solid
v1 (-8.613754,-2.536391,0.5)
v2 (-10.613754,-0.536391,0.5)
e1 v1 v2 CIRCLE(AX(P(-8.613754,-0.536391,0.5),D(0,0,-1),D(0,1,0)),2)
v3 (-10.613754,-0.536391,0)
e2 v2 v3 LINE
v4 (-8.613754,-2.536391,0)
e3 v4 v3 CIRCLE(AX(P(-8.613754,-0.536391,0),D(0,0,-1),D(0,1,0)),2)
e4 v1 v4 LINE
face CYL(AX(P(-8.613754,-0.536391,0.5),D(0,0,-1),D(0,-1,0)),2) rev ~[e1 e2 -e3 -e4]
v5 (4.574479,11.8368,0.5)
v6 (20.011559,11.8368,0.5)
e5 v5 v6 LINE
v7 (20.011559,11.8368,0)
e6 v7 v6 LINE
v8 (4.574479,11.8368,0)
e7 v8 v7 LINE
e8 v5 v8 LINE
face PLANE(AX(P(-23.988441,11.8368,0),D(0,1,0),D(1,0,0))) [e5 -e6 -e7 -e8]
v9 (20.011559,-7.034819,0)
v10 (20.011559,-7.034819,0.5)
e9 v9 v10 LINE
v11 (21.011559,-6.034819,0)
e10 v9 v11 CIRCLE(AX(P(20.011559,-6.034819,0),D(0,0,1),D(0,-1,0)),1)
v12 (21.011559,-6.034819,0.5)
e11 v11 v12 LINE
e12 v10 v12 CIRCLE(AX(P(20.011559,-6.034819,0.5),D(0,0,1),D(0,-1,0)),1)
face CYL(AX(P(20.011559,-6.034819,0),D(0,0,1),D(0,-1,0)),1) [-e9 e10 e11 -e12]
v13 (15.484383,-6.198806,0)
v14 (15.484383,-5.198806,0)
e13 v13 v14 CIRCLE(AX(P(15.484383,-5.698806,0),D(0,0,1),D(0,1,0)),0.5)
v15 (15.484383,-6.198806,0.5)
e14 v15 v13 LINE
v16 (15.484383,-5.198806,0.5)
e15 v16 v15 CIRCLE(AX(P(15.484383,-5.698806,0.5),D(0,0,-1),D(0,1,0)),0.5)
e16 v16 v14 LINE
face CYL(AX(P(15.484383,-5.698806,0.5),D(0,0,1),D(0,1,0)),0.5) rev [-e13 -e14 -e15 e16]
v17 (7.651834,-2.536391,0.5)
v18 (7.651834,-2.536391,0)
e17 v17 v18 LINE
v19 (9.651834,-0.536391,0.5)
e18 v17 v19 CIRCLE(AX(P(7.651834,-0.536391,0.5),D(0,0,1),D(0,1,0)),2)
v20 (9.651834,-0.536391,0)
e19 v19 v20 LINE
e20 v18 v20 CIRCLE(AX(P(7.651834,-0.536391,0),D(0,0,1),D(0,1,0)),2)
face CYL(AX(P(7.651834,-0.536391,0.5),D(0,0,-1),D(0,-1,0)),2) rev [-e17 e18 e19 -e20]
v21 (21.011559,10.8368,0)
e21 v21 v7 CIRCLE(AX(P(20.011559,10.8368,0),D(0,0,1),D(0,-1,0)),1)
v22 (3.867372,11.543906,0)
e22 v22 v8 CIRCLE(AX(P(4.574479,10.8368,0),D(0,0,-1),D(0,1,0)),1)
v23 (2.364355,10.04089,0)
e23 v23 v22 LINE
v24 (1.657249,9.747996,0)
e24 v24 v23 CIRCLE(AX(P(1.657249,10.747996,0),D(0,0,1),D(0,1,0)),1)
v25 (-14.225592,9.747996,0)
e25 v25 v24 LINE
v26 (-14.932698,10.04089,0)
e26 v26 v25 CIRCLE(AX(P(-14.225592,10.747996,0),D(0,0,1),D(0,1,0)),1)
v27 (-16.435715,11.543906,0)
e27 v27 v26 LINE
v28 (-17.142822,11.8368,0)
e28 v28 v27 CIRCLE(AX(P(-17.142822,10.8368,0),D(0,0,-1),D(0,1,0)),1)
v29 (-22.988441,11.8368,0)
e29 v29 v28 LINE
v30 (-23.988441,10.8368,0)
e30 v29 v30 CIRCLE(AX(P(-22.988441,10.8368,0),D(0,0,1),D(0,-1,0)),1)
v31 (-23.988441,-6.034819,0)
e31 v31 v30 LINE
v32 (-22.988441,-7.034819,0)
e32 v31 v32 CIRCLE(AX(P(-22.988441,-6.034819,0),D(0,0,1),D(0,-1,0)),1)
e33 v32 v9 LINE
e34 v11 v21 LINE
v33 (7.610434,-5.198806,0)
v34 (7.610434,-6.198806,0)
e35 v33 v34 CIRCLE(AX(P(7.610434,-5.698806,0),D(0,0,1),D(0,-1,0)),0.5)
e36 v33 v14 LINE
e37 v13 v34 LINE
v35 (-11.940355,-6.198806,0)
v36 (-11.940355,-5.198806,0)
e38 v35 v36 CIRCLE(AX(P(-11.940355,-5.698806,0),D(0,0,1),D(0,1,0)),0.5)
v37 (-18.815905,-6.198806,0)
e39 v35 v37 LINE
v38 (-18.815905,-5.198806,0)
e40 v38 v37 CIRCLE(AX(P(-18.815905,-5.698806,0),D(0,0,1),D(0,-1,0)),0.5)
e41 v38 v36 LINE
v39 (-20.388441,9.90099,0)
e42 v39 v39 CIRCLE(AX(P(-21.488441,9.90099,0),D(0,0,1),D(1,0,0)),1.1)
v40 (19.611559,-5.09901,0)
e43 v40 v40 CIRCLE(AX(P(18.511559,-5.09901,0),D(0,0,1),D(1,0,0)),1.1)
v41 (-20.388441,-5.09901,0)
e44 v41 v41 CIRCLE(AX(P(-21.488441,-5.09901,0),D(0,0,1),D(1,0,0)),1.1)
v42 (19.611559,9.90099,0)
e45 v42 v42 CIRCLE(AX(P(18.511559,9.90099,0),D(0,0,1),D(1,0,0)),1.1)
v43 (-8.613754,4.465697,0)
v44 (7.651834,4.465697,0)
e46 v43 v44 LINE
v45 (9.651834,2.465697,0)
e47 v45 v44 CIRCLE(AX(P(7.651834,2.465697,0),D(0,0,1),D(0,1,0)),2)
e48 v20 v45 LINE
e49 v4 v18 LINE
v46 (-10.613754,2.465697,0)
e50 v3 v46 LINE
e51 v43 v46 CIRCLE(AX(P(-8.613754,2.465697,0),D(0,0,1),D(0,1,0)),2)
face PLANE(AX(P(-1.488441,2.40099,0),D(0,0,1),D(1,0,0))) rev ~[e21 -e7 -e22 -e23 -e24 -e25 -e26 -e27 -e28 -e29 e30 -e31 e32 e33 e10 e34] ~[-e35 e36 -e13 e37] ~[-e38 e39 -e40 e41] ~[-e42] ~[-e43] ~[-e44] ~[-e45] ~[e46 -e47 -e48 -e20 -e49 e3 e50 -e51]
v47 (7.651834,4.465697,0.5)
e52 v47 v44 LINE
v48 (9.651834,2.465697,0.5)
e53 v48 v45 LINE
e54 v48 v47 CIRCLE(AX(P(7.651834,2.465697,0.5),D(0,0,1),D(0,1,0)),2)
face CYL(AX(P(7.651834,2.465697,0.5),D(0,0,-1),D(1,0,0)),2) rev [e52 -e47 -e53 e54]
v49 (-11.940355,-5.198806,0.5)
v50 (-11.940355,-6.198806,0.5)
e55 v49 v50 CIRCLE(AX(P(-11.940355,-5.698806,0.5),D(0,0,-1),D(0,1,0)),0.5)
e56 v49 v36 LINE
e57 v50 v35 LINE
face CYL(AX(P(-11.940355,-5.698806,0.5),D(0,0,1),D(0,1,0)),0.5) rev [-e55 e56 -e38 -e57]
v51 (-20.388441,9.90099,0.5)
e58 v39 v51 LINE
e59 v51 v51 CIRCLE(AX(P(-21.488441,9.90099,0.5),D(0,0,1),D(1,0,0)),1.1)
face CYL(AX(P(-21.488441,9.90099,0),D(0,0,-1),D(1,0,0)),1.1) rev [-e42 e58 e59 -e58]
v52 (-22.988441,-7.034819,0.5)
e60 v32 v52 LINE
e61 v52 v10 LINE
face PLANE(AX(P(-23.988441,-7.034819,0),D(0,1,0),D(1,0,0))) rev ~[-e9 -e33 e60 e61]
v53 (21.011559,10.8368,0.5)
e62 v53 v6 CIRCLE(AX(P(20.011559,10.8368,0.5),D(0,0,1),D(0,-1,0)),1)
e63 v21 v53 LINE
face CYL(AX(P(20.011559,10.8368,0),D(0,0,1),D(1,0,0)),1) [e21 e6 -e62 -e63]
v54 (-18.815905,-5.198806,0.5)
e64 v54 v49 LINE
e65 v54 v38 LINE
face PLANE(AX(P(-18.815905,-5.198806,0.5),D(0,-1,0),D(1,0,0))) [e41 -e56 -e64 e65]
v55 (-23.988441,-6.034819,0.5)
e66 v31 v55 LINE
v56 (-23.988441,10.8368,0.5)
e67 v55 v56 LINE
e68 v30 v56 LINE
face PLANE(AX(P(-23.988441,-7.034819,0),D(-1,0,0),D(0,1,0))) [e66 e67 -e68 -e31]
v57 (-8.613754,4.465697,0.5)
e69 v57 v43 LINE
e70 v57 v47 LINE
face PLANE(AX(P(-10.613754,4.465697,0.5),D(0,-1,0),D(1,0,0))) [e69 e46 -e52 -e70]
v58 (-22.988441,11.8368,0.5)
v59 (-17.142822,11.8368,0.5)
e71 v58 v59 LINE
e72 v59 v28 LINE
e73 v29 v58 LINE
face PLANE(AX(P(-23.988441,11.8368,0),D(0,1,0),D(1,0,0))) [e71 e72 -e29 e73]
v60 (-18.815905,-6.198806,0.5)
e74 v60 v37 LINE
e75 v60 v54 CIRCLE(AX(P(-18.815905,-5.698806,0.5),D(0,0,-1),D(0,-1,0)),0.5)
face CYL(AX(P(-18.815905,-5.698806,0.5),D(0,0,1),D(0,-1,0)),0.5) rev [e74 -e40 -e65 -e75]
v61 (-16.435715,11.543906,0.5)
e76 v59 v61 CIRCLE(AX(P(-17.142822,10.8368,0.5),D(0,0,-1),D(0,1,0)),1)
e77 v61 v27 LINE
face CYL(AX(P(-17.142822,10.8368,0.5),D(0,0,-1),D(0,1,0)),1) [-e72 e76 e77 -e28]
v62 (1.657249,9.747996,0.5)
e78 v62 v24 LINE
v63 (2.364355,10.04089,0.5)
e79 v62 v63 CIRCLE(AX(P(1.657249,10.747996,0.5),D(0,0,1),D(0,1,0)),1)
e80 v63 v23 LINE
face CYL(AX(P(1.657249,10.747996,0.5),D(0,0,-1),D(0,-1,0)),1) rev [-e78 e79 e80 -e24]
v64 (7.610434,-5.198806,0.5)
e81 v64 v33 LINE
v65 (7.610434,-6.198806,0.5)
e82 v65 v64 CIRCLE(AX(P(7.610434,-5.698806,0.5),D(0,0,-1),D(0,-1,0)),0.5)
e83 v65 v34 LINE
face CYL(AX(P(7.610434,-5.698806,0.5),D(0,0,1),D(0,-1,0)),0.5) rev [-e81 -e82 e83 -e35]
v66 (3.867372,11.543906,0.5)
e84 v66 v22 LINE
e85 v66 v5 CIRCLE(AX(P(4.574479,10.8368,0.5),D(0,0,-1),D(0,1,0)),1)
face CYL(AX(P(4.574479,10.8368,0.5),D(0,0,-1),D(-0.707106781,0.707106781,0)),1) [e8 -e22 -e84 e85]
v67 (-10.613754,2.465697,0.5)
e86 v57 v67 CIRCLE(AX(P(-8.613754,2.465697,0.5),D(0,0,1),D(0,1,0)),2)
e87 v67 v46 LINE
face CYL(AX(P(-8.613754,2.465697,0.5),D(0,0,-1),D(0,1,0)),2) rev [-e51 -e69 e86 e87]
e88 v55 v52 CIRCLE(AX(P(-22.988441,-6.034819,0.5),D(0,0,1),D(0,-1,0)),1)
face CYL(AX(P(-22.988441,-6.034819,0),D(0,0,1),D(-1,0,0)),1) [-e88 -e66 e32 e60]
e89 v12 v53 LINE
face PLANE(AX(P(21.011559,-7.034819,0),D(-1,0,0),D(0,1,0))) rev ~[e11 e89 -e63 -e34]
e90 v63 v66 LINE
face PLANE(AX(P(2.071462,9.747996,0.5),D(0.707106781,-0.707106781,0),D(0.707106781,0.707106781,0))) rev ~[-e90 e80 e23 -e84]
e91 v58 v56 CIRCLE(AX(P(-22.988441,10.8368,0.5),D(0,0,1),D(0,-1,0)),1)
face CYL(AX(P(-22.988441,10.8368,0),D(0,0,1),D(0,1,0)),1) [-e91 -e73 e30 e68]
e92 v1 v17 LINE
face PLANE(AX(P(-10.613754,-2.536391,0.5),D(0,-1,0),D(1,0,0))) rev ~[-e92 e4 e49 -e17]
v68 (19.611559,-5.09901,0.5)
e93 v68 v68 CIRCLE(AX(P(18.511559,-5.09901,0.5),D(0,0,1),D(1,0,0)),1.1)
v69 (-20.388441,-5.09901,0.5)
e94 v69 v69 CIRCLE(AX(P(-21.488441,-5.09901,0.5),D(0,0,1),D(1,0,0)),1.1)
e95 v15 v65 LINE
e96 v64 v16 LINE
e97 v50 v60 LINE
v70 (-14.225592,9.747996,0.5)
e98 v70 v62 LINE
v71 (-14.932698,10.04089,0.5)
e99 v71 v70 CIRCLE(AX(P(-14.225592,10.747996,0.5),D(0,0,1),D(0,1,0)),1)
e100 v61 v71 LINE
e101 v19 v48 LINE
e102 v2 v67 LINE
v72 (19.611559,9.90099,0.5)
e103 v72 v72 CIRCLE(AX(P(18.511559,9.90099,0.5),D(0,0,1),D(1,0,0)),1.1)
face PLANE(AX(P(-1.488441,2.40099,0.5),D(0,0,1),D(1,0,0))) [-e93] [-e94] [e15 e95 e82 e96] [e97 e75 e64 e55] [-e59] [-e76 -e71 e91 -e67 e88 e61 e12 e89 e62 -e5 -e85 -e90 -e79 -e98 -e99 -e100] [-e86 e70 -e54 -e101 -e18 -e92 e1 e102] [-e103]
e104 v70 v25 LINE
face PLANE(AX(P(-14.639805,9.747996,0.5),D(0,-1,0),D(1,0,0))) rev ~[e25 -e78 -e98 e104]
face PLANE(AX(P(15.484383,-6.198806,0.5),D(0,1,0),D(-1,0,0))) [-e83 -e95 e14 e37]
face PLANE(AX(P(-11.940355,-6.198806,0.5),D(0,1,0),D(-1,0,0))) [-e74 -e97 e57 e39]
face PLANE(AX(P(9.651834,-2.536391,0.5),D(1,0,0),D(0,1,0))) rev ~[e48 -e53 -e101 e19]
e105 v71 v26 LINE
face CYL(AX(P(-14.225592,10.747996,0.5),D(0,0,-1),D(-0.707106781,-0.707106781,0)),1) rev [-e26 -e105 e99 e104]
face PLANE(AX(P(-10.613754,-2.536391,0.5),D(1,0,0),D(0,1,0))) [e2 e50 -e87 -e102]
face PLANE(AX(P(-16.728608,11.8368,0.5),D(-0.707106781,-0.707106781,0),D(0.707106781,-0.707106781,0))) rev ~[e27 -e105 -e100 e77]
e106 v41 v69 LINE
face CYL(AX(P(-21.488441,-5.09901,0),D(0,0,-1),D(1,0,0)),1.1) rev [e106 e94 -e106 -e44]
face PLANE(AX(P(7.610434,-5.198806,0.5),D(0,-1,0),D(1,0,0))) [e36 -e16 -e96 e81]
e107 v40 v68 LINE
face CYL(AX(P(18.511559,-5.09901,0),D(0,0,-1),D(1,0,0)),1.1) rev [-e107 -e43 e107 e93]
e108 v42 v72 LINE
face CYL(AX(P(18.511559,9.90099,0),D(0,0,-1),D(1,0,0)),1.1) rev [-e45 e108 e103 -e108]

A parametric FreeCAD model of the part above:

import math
import FreeCAD as App
import Part
import Sketcher
Q = App.Units.Quantity


def edges_at(feature, points):
    """Names of the edges that pass closest to the given points."""
    edges = feature.Shape.Edges
    near = lambda p: min(range(len(edges)), key=lambda i: edges[i].distToShape(Part.Vertex(*p))[0])
    return sorted({f"Edge{near(p) + 1}" for p in points})

doc = App.newDocument("Part")
body = doc.addObject("PartDesign::Body", "Body")

sketch1 = body.newObject("Sketcher::SketchObject", "Sketch")
sketch1.AttachmentSupport = (doc.getObject("XY_Plane"), [""])
sketch1.MapMode = "FlatFace"
sketch1.addGeometry(Part.LineSegment(App.Vector(-24, 11.8, 0), App.Vector(-24, -7, 0)), False)
sketch1.addGeometry(Part.LineSegment(App.Vector(-24, -7, 0), App.Vector(21, -7, 0)), False)
sketch1.addGeometry(Part.LineSegment(App.Vector(21, -7, 0), App.Vector(21, 11.8, 0)), False)
sketch1.addGeometry(Part.LineSegment(App.Vector(21, 11.8, 0), App.Vector(-24, 11.8, 0)), False)
sketch1.addGeometry(Part.Circle(App.Vector(-21.5, -5.1, 0), App.Vector(0, 0, 1), 1.1), False)
sketch1.addGeometry(Part.Circle(App.Vector(18.5, -5.1, 0), App.Vector(0, 0, 1), 1.1), False)
sketch1.addGeometry(Part.Circle(App.Vector(-21.5, 9.9, 0), App.Vector(0, 0, 1), 1.1), False)
sketch1.addGeometry(Part.Circle(App.Vector(18.5, 9.9, 0), App.Vector(0, 0, 1), 1.1), False)
sketch1.addConstraint(Sketcher.Constraint("Coincident", 0, 2, 1, 1))
sketch1.addConstraint(Sketcher.Constraint("Coincident", 1, 2, 2, 1))
sketch1.addConstraint(Sketcher.Constraint("Coincident", 2, 2, 3, 1))
sketch1.addConstraint(Sketcher.Constraint("Coincident", 3, 2, 0, 1))
sketch1.addConstraint(Sketcher.Constraint("Vertical", 0))
sketch1.addConstraint(Sketcher.Constraint("Horizontal", 1))
sketch1.addConstraint(Sketcher.Constraint("Vertical", 2))
sketch1.addConstraint(Sketcher.Constraint("Horizontal", 3))
sketch1.addConstraint(Sketcher.Constraint("Equal", 4, 5))
sketch1.addConstraint(Sketcher.Constraint("Equal", 5, 6))
sketch1.addConstraint(Sketcher.Constraint("Equal", 6, 7))
sketch1.addConstraint(Sketcher.Constraint("Horizontal", 4, 3, 5, 3))
sketch1.addConstraint(Sketcher.Constraint("Horizontal", 6, 3, 7, 3))
sketch1.addConstraint(Sketcher.Constraint("Vertical", 4, 3, 6, 3))
sketch1.addConstraint(Sketcher.Constraint("Vertical", 5, 3, 7, 3))
sketch1.addConstraint(Sketcher.Constraint("Diameter", 4, Q("2.2 mm")))
sketch1.addConstraint(Sketcher.Constraint("DistanceX", 1, 1, 1, 2, Q("45 mm")))
sketch1.addConstraint(Sketcher.Constraint("DistanceX", 4, 3, 5, 3, Q("40 mm")))
sketch1.addConstraint(Sketcher.Constraint("DistanceY", 4, 3, 6, 3, Q("15 mm")))
sketch1.addConstraint(Sketcher.Constraint("DistanceX", 0, 2, 4, 3, Q("2.5 mm")))
sketch1.addConstraint(Sketcher.Constraint("DistanceY", 0, 2, 0, 1, Q("18.871619 mm")))
sketch1.addConstraint(Sketcher.Constraint("DistanceY", -1, 1, 2, 2, Q("11.8368 mm")))
sketch1.addConstraint(Sketcher.Constraint("DistanceX", 4, 3, -1, 1, Q("21.488441 mm")))
sketch1.addConstraint(Sketcher.Constraint("DistanceY", 4, 3, -1, 1, Q("5.09901 mm")))
pad1 = body.newObject("PartDesign::Pad", "Pad")
pad1.Profile = sketch1
pad1.Length = 0.5

sketch2 = body.newObject("Sketcher::SketchObject", "Sketch001")
sketch2.AttachmentSupport = (doc.getObject("XY_Plane"), [""])
sketch2.MapMode = "FlatFace"
sketch2.AttachmentOffset = App.Placement(App.Vector(0, 0, 0.5), App.Rotation())
sketch2.addGeometry(Part.LineSegment(App.Vector(-16.7, 11.8, 0), App.Vector(-14.6, 9.7, 0)), False)
sketch2.addGeometry(Part.LineSegment(App.Vector(-14.6, 9.7, 0), App.Vector(2.1, 9.7, 0)), False)
sketch2.addGeometry(Part.LineSegment(App.Vector(2.1, 9.7, 0), App.Vector(5.5, 13.2, 0)), False)
sketch2.addGeometry(Part.LineSegment(App.Vector(5.5, 13.2, 0), App.Vector(-14.9, 13.2, 0)), False)
sketch2.addGeometry(Part.LineSegment(App.Vector(-14.9, 13.2, 0), App.Vector(-16.7, 11.8, 0)), False)
sketch2.addGeometry(Part.LineSegment(App.Vector(-10.6, 4.5, 0), App.Vector(-10.6, -2.5, 0)), False)
sketch2.addGeometry(Part.LineSegment(App.Vector(-10.6, -2.5, 0), App.Vector(9.7, -2.5, 0)), False)
sketch2.addGeometry(Part.LineSegment(App.Vector(9.7, -2.5, 0), App.Vector(9.7, 4.5, 0)), False)
sketch2.addGeometry(Part.LineSegment(App.Vector(9.7, 4.5, 0), App.Vector(-10.6, 4.5, 0)), False)
sketch2.addGeometry(Part.LineSegment(App.Vector(-11.9, -5.2, 0), App.Vector(-18.8, -5.2, 0)), False)
sketch2.addGeometry(Part.ArcOfCircle(Part.Circle(App.Vector(-18.8, -5.7, 0), App.Vector(0, 0, 1), 0.5), math.radians(90), math.radians(270)), False)
sketch2.addGeometry(Part.LineSegment(App.Vector(-18.8, -6.2, 0), App.Vector(-11.9, -6.2, 0)), False)
sketch2.addGeometry(Part.ArcOfCircle(Part.Circle(App.Vector(-11.9, -5.7, 0), App.Vector(0, 0, 1), 0.5), math.radians(-90), math.radians(90)), False)
sketch2.addGeometry(Part.LineSegment(App.Vector(15.5, -5.2, 0), App.Vector(7.6, -5.2, 0)), False)
sketch2.addGeometry(Part.ArcOfCircle(Part.Circle(App.Vector(7.6, -5.7, 0), App.Vector(0, 0, 1), 0.5), math.radians(90), math.radians(270)), False)
sketch2.addGeometry(Part.LineSegment(App.Vector(7.6, -6.2, 0), App.Vector(15.5, -6.2, 0)), False)
sketch2.addGeometry(Part.ArcOfCircle(Part.Circle(App.Vector(15.5, -5.7, 0), App.Vector(0, 0, 1), 0.5), math.radians(-90), math.radians(90)), False)
sketch2.addConstraint(Sketcher.Constraint("Coincident", 0, 2, 1, 1))
sketch2.addConstraint(Sketcher.Constraint("Coincident", 1, 2, 2, 1))
sketch2.addConstraint(Sketcher.Constraint("Coincident", 2, 2, 3, 1))
sketch2.addConstraint(Sketcher.Constraint("Coincident", 3, 2, 4, 1))
sketch2.addConstraint(Sketcher.Constraint("Coincident", 4, 2, 0, 1))
sketch2.addConstraint(Sketcher.Constraint("Coincident", 5, 2, 6, 1))
sketch2.addConstraint(Sketcher.Constraint("Coincident", 6, 2, 7, 1))
sketch2.addConstraint(Sketcher.Constraint("Coincident", 7, 2, 8, 1))
sketch2.addConstraint(Sketcher.Constraint("Coincident", 8, 2, 5, 1))
sketch2.addConstraint(Sketcher.Constraint("Tangent", 9, 2, 10, 1))
sketch2.addConstraint(Sketcher.Constraint("Tangent", 10, 2, 11, 1))
sketch2.addConstraint(Sketcher.Constraint("Tangent", 11, 2, 12, 1))
sketch2.addConstraint(Sketcher.Constraint("Tangent", 12, 2, 9, 1))
sketch2.addConstraint(Sketcher.Constraint("Tangent", 13, 2, 14, 1))
sketch2.addConstraint(Sketcher.Constraint("Tangent", 14, 2, 15, 1))
sketch2.addConstraint(Sketcher.Constraint("Tangent", 15, 2, 16, 1))
sketch2.addConstraint(Sketcher.Constraint("Tangent", 16, 2, 13, 1))
sketch2.addConstraint(Sketcher.Constraint("Horizontal", 1))
sketch2.addConstraint(Sketcher.Constraint("Horizontal", 3))
sketch2.addConstraint(Sketcher.Constraint("Vertical", 5))
sketch2.addConstraint(Sketcher.Constraint("Horizontal", 6))
sketch2.addConstraint(Sketcher.Constraint("Vertical", 7))
sketch2.addConstraint(Sketcher.Constraint("Horizontal", 8))
sketch2.addConstraint(Sketcher.Constraint("Horizontal", 9))
sketch2.addConstraint(Sketcher.Constraint("Horizontal", 11))
sketch2.addConstraint(Sketcher.Constraint("Horizontal", 13))
sketch2.addConstraint(Sketcher.Constraint("Horizontal", 15))
sketch2.addConstraint(Sketcher.Constraint("Equal", 12, 14))
sketch2.addConstraint(Sketcher.Constraint("Perpendicular", 0, 2))
sketch2.addConstraint(Sketcher.Constraint("Horizontal", 12, 3, 14, 3))
sketch2.addConstraint(Sketcher.Constraint("Radius", 10, Q("0.5 mm")))
sketch2.addConstraint(Sketcher.Constraint("Angle", 0, Q("-45 deg")))
sketch2.addConstraint(Sketcher.Constraint("Distance", 2, Q("4.8766 mm")))
sketch2.addConstraint(Sketcher.Constraint("DistanceX", 3, 2, 3, 1, Q("20.39159 mm")))
sketch2.addConstraint(Sketcher.Constraint("DistanceX", 6, 1, 6, 2, Q("20.265588 mm")))
sketch2.addConstraint(Sketcher.Constraint("DistanceX", 9, 2, 9, 1, Q("6.87555 mm")))
sketch2.addConstraint(Sketcher.Constraint("DistanceX", 13, 2, 13, 1, Q("7.873949 mm")))
sketch2.addConstraint(Sketcher.Constraint("DistanceY", 5, 2, 5, 1, Q("7.002088 mm")))
sketch2.addConstraint(Sketcher.Constraint("DistanceY", -1, 1, 4, 2, Q("11.8368 mm")))
sketch2.addConstraint(Sketcher.Constraint("DistanceX", 10, 3, 0, 2, Q("4.1761 mm")))
sketch2.addConstraint(Sketcher.Constraint("DistanceX", 12, 3, 5, 2, Q("1.3266 mm")))
sketch2.addConstraint(Sketcher.Constraint("DistanceX", 14, 3, 6, 2, Q("2.041399 mm")))
sketch2.addConstraint(Sketcher.Constraint("DistanceY", 7, 2, 1, 2, Q("5.282299 mm")))
sketch2.addConstraint(Sketcher.Constraint("DistanceX", 1, 1, 1, 2, Q("16.711267 mm")))
sketch2.addConstraint(Sketcher.Constraint("DistanceX", -1, 1, 2, 2, Q("5.519739 mm")))
sketch2.addConstraint(Sketcher.Constraint("DistanceX", 4, 2, -1, 1, Q("16.728608 mm")))
sketch2.addConstraint(Sketcher.Constraint("DistanceY", 14, 3, 2, 2, Q("18.895079 mm")))
pocket1 = body.newObject("PartDesign::Pocket", "Pocket")
pocket1.Profile = sketch2
pocket1.Length = 1.5
doc.recompute()

fillet = body.newObject("PartDesign::Fillet", "Fillet")
fillet.Base = (pocket1, edges_at(pocket1, [
    (-16.729, 11.837, 0.25),
    (4.16, 11.837, 0.25),
    (2.071, 9.748, 0.25),
    (-14.64, 9.748, 0.25),
]))
fillet.Radius = 1
doc.recompute()

fillet2 = body.newObject("PartDesign::Fillet", "Fillet001")
fillet2.Base = (fillet, edges_at(fillet, [
    (21.012, -7.035, 0.25),
    (-23.988, -7.035, 0.25),
    (-23.988, 11.837, 0.25),
    (21.012, 11.837, 0.25),
]))
fillet2.Radius = 1
doc.recompute()

fillet3 = body.newObject("PartDesign::Fillet", "Fillet002")
fillet3.Base = (fillet2, edges_at(fillet2, [
    (9.652, 4.466, 0.25),
    (9.652, -2.536, 0.25),
    (-10.614, -2.536, 0.25),
    (-10.614, 4.466, 0.25),
]))
fillet3.Radius = 2

doc.recompute()
